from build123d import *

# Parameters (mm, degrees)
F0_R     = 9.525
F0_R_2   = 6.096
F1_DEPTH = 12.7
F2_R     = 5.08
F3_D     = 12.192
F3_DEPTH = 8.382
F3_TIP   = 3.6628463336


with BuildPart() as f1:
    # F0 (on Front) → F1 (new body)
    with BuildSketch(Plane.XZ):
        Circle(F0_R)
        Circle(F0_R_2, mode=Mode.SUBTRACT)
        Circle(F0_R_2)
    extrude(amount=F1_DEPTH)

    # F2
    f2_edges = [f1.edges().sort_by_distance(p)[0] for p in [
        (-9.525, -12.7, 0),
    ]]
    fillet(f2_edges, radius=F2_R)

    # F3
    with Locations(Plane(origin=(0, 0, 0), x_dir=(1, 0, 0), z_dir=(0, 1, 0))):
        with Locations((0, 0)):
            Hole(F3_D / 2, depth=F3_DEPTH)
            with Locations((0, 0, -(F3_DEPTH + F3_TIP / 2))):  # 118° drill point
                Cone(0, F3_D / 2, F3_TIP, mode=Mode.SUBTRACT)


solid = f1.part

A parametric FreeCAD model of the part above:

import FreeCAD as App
import Part
import Sketcher

V = App.Vector
Q = App.Units.Quantity


def edges_at(feature, points):
    """Names of the edges that pass closest to the given points."""
    edges = feature.Shape.Edges
    near = lambda p: min(range(len(edges)), key=lambda i: edges[i].distToShape(Part.Vertex(*p))[0])
    return sorted({f"Edge{near(p) + 1}" for p in points})

doc = App.newDocument("Part")
params = doc.addObject("Spreadsheet::Sheet", "Params")
for row, (alias, value) in enumerate([
    ("sketch1_diameter", "0.75 in"),
    ("pad1_length", "0.5 in"),
    ("fillet_radius", "0.2 in"),
    ("sketch2_diameter", "0.48 in"),
    ("hole_diameter", "0.48 in"),
    ("hole_depth", "0.33 in"),
], start=1):
    params.set(f"A{row}", alias)
    params.set(f"B{row}", "=" + value)
    params.setAlias(f"B{row}", alias)

body = doc.addObject("PartDesign::Body", "Body")

# Sketch on XZ plane
sketch1 = doc.addObject("Sketcher::SketchObject", "Sketch")
body.addObject(sketch1)
sketch1.AttachmentSupport = (doc.XZ_Plane, [""])
sketch1.MapMode = "FlatFace"
sketch1.addGeometry(Part.Circle(V(0, 0, 0), V(0, 0, 1), 9.525), False)
sketch1.addConstraint([
    Sketcher.Constraint("Coincident", 0, 3, -1, 1),
    Sketcher.Constraint("Diameter", 0, Q("0.75 in")),
])
sketch1.setExpression("Constraints[1]", "Params.sketch1_diameter")
pad1 = doc.addObject("PartDesign::Pad", "Pad")
body.addObject(pad1)
pad1.Profile = sketch1
pad1.setExpression("Length", "Params.pad1_length")
doc.recompute()

fillet = doc.addObject("PartDesign::Fillet", "Fillet")
body.addObject(fillet)
fillet.Base = (pad1, edges_at(pad1, [(-9.525, -12.7, 0)]))
fillet.setExpression("Radius", "Params.fillet_radius")

# Sketch on XZ plane
sketch2 = doc.addObject("Sketcher::SketchObject", "Sketch001")
body.addObject(sketch2)
sketch2.AttachmentSupport = (doc.XZ_Plane, [""])
sketch2.MapMode = "FlatFace"
sketch2.addGeometry(Part.Circle(V(0, 0, 0), V(0, 0, 1), 6.096), False)
sketch2.addConstraint([
    Sketcher.Constraint("Coincident", 0, 3, -1, 1),
    Sketcher.Constraint("Diameter", 0, Q("0.48 in")),
])
sketch2.setExpression("Constraints[1]", "Params.sketch2_diameter")
doc.recompute()
hole = doc.addObject("PartDesign::Hole", "Hole")
body.addObject(hole)
hole.Profile = sketch2
hole.ThreadType = "None"
hole.setExpression("Diameter", "Params.hole_diameter")
hole.DepthType = "Dimension"
hole.setExpression("Depth", "Params.hole_depth")
hole.DrillPoint = "Angled"
hole.DrillPointAngle = 118
hole.Reversed = True

doc.recompute()
